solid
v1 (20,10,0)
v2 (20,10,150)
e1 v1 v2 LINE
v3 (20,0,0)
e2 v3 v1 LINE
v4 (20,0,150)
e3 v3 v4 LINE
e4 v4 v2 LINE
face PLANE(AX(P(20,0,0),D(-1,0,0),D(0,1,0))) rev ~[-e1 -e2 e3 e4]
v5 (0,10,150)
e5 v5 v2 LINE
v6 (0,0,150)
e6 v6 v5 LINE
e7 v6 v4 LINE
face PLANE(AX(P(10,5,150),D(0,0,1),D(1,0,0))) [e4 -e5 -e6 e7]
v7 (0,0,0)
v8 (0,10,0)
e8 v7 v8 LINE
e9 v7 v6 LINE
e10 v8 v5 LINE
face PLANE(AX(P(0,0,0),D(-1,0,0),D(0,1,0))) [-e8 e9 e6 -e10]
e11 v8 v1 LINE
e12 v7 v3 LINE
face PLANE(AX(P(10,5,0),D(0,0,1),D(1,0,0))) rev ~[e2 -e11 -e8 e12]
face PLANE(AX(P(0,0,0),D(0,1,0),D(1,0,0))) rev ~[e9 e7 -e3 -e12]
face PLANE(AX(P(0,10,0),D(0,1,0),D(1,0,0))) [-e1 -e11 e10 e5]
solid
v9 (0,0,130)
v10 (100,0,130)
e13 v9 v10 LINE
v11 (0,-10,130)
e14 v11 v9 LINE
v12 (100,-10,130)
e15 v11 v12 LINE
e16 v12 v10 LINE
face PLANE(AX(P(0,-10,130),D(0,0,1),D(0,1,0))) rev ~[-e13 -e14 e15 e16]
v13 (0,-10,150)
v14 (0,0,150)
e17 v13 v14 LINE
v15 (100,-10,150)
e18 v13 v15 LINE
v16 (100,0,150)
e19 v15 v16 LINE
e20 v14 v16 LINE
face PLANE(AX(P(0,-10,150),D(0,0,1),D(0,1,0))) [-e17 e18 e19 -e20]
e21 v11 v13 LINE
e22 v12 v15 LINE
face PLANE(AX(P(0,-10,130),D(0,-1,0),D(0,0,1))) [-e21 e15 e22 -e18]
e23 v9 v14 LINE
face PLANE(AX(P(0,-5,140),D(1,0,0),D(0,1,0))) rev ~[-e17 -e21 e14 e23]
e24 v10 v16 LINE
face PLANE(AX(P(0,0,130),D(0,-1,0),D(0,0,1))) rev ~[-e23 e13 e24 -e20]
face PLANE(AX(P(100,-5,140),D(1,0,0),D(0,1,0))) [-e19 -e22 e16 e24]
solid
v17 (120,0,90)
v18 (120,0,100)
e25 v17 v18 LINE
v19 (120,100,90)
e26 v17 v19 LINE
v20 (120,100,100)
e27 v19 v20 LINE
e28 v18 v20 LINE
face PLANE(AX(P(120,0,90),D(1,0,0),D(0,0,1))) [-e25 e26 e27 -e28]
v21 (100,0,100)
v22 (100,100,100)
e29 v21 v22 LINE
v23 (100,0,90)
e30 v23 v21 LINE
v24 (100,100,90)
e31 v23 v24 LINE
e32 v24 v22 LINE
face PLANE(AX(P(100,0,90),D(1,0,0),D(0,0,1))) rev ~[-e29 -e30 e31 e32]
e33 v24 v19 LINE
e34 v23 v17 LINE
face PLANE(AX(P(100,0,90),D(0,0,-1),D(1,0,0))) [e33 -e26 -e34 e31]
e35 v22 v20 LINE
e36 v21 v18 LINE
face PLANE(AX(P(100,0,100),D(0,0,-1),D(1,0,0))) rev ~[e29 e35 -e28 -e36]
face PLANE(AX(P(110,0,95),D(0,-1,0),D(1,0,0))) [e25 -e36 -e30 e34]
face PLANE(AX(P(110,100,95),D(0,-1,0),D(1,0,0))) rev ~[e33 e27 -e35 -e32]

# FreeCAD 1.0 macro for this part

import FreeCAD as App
import Part
import Sketcher

doc = App.newDocument("Part")
body = doc.addObject("PartDesign::Body", "Body")

sketch1 = body.newObject("Sketcher::SketchObject", "Sketch")
sketch1.AttachmentSupport = (doc.getObject("XY_Plane"), [""])
sketch1.MapMode = "FlatFace"
sketch1.addGeometry([
    Part.LineSegment(App.Vector(0, 10, 0), App.Vector(0, 0, 0)),
    Part.LineSegment(App.Vector(0, 0, 0), App.Vector(20, 0, 0)),
    Part.LineSegment(App.Vector(20, 0, 0), App.Vector(20, 10, 0)),
    Part.LineSegment(App.Vector(20, 10, 0), App.Vector(0, 10, 0)),
], False)
sketch1.addConstraint([
    Sketcher.Constraint("Coincident", 0, 2, 1, 1),
    Sketcher.Constraint("Coincident", 1, 2, 2, 1),
    Sketcher.Constraint("Coincident", 2, 2, 3, 1),
    Sketcher.Constraint("Coincident", 3, 2, 0, 1),
    Sketcher.Constraint("Vertical", 0),
    Sketcher.Constraint("Horizontal", 1),
    Sketcher.Constraint("Vertical", 2),
    Sketcher.Constraint("Horizontal", 3),
    Sketcher.Constraint("Coincident", 0, 2, -1, 1),
    Sketcher.Constraint("DistanceX", 1, 1, 1, 2, 20.0),
    Sketcher.Constraint("DistanceY", 0, 2, 0, 1, 10.0),
])
pad1 = body.newObject("PartDesign::Pad", "Pad")
pad1.Profile = sketch1
pad1.Length = 150
body2 = doc.addObject("PartDesign::Body", "Body001")

sketch2 = body2.newObject("Sketcher::SketchObject", "Sketch001")
sketch2.AttachmentSupport = (doc.getObject("YZ_Plane001"), [""])
sketch2.MapMode = "FlatFace"
sketch2.addGeometry([
    Part.LineSegment(App.Vector(-10, 150, 0), App.Vector(-10, 130, 0)),
    Part.LineSegment(App.Vector(-10, 130, 0), App.Vector(0, 130, 0)),
    Part.LineSegment(App.Vector(0, 130, 0), App.Vector(0, 150, 0)),
    Part.LineSegment(App.Vector(0, 150, 0), App.Vector(-10, 150, 0)),
], False)
sketch2.addConstraint([
    Sketcher.Constraint("Coincident", 0, 2, 1, 1),
    Sketcher.Constraint("Coincident", 1, 2, 2, 1),
    Sketcher.Constraint("Coincident", 2, 2, 3, 1),
    Sketcher.Constraint("Coincident", 3, 2, 0, 1),
    Sketcher.Constraint("Vertical", 0),
    Sketcher.Constraint("Horizontal", 1),
    Sketcher.Constraint("Vertical", 2),
    Sketcher.Constraint("Horizontal", 3),
    Sketcher.Constraint("PointOnObject", 1, 2, -2),
    Sketcher.Constraint("DistanceX", 1, 1, 1, 2, 10.0),
    Sketcher.Constraint("DistanceY", 0, 2, 0, 1, 20.0),
    Sketcher.Constraint("DistanceY", -1, 1, 0, 2, 130.0),
])
pad2 = body2.newObject("PartDesign::Pad", "Pad001")
pad2.Profile = sketch2
pad2.Length = 100
body3 = doc.addObject("PartDesign::Body", "Body002")

sketch3 = body3.newObject("Sketcher::SketchObject", "Sketch002")
sketch3.AttachmentSupport = (doc.getObject("XZ_Plane002"), [""])
sketch3.MapMode = "FlatFace"
sketch3.addGeometry([
    Part.LineSegment(App.Vector(100, 100, 0), App.Vector(100, 90, 0)),
    Part.LineSegment(App.Vector(100, 90, 0), App.Vector(120, 90, 0)),
    Part.LineSegment(App.Vector(120, 90, 0), App.Vector(120, 100, 0)),
    Part.LineSegment(App.Vector(120, 100, 0), App.Vector(100, 100, 0)),
], False)
sketch3.addConstraint([
    Sketcher.Constraint("Coincident", 0, 2, 1, 1),
    Sketcher.Constraint("Coincident", 1, 2, 2, 1),
    Sketcher.Constraint("Coincident", 2, 2, 3, 1),
    Sketcher.Constraint("Coincident", 3, 2, 0, 1),
    Sketcher.Constraint("Vertical", 0),
    Sketcher.Constraint("Horizontal", 1),
    Sketcher.Constraint("Vertical", 2),
    Sketcher.Constraint("Horizontal", 3),
    Sketcher.Constraint("DistanceX", 1, 1, 1, 2, 20.0),
    Sketcher.Constraint("DistanceY", 0, 2, 0, 1, 10.0),
    Sketcher.Constraint("DistanceX", -1, 1, 0, 2, 100.0),
    Sketcher.Constraint("DistanceY", -1, 1, 0, 2, 90.0),
])
pad3 = body3.newObject("PartDesign::Pad", "Pad002")
pad3.Profile = sketch3
pad3.Length = 100
pad3.Reversed = True

doc.recompute()
